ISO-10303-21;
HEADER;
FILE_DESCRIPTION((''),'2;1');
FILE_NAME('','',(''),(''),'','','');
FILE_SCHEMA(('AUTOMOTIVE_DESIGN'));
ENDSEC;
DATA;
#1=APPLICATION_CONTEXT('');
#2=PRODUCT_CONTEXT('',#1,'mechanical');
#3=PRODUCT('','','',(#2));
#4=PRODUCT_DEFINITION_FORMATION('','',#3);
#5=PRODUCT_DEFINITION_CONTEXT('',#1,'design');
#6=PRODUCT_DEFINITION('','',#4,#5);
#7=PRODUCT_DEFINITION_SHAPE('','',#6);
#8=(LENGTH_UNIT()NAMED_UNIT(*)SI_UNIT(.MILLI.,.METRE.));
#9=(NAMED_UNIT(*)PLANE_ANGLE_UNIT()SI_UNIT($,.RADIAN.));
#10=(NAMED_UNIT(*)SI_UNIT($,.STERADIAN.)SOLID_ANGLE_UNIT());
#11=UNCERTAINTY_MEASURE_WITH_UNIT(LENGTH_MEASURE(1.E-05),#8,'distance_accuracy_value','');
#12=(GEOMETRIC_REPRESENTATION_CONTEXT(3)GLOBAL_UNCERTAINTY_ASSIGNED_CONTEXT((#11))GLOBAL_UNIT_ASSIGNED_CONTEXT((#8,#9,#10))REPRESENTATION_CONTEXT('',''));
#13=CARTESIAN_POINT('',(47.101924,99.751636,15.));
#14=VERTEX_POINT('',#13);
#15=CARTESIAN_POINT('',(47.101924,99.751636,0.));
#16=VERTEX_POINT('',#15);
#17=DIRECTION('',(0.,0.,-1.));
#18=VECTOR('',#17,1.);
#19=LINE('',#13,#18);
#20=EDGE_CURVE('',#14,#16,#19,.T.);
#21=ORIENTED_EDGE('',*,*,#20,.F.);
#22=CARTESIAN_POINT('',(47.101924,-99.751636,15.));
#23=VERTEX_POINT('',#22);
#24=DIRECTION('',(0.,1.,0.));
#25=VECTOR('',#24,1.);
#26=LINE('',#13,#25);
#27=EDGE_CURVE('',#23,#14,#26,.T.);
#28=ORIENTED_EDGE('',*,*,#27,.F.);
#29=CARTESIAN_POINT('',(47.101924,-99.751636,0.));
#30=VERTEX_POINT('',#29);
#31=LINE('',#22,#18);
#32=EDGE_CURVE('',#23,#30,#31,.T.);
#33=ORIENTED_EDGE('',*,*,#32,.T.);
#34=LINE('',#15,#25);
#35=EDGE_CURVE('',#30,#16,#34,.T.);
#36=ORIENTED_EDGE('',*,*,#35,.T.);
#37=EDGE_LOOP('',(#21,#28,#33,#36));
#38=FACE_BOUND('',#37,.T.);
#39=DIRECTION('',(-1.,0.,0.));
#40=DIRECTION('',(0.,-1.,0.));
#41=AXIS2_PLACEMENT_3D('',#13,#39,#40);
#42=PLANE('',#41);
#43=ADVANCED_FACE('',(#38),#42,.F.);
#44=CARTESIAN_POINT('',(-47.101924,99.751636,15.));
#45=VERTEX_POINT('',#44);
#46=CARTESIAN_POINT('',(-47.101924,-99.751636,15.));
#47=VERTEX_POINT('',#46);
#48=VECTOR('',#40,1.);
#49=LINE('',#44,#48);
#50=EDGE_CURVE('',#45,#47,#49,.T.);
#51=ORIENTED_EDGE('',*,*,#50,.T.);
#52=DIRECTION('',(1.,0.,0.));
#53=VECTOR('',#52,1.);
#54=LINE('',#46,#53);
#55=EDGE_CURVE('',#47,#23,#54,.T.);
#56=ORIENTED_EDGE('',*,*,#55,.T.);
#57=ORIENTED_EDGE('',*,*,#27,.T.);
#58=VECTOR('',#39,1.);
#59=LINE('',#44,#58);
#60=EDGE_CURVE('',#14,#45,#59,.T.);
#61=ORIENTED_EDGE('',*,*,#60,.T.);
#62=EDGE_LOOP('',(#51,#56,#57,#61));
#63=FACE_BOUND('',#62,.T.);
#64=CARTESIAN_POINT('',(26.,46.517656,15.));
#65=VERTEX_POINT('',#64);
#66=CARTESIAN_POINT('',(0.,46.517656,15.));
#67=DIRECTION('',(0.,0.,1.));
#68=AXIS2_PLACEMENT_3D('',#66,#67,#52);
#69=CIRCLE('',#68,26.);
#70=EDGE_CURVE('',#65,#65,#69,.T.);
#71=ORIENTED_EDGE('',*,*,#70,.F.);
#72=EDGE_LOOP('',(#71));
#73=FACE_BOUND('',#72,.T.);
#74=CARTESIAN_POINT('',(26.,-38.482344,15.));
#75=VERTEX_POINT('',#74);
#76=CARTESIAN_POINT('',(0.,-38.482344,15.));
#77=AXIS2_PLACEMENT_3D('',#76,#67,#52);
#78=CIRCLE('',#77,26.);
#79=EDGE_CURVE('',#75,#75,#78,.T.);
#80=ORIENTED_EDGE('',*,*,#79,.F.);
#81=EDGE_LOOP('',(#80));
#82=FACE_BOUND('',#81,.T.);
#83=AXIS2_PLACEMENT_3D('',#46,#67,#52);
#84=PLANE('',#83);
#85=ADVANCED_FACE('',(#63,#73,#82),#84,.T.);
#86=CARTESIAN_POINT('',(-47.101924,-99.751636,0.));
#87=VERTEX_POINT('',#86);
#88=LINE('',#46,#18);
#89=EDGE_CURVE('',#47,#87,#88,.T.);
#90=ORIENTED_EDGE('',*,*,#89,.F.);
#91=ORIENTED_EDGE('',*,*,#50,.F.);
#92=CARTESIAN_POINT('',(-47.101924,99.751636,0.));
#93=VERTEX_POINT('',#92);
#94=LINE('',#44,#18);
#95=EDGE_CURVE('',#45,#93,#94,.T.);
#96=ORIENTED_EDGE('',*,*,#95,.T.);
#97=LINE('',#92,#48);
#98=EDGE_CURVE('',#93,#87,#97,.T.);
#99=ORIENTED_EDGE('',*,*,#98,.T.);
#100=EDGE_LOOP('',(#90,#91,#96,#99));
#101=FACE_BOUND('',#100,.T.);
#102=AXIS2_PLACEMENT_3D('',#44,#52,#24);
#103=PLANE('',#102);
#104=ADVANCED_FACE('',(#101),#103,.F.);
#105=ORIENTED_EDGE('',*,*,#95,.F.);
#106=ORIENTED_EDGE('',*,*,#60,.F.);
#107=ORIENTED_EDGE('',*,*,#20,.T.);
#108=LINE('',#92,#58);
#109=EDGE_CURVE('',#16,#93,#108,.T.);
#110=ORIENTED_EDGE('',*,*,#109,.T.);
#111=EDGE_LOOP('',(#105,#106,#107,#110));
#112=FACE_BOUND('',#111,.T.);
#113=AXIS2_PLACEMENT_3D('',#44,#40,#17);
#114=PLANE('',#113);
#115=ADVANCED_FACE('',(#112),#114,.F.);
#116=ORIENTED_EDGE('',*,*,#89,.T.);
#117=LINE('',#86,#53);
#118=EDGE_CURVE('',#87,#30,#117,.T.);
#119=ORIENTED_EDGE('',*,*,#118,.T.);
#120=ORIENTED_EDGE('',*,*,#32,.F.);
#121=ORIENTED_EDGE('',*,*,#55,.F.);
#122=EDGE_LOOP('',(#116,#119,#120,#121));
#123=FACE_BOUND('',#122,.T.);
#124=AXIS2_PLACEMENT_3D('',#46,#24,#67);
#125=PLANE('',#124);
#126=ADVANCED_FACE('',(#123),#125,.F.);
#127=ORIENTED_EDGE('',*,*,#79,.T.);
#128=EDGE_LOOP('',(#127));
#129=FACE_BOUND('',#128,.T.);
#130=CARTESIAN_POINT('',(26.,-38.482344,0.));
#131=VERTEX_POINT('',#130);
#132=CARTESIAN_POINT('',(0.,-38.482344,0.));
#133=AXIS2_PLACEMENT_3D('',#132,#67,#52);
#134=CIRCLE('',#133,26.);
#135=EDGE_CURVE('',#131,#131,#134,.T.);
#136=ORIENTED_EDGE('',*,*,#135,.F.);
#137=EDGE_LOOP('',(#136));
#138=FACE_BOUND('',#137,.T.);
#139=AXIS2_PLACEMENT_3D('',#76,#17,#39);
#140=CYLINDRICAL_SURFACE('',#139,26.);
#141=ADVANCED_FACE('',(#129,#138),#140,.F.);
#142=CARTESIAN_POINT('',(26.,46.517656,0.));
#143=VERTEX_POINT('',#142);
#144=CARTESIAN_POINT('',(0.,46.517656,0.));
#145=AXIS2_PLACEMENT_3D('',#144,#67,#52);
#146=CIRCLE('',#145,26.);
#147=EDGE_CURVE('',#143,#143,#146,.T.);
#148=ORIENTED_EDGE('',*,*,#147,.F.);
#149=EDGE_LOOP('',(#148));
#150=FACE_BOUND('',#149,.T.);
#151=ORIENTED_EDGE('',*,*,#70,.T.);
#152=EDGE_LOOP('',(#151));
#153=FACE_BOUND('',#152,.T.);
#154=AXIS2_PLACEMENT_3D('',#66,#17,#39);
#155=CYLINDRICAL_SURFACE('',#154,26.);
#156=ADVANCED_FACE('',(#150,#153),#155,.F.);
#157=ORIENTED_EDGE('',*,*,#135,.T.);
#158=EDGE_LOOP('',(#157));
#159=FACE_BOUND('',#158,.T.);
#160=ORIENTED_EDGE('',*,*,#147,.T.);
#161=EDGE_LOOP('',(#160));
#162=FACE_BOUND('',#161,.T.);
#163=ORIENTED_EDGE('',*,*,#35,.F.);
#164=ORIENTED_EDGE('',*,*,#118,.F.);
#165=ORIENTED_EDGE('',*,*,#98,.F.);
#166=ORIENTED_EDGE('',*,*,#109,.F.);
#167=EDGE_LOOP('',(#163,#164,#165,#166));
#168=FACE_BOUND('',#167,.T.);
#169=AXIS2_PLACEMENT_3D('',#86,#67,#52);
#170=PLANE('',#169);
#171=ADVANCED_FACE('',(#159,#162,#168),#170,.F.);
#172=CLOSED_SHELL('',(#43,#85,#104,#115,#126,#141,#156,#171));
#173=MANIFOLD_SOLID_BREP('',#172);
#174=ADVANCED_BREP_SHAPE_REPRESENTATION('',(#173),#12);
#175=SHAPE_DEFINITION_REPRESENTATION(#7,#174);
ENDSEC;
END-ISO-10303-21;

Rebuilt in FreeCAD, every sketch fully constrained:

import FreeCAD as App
import Part
import Sketcher
from FreeCAD import Vector
Q = App.Units.Quantity


def add_polygon(sketch, points):
    """Adds a closed chain of lines whose ends are joined by coincident constraints."""
    first, n = sketch.GeometryCount, len(points)
    for a, b in zip(points, points[1:] + points[:1]):
        sketch.addGeometry(Part.LineSegment(App.Vector(*a, 0), App.Vector(*b, 0)), False)
    for i in range(n):
        sketch.addConstraint(Sketcher.Constraint("Coincident", first + i, 2, first + (i + 1) % n, 1))

doc = App.newDocument("Part")
body = doc.addObject("PartDesign::Body", "Body")

# Sketch on XY plane
sketch1 = doc.addObject("Sketcher::SketchObject", "Sketch")
body.addObject(sketch1)
sketch1.AttachmentSupport = (doc.XY_Plane, [""])
sketch1.MapMode = "FlatFace"
add_polygon(sketch1, [(-47.101924, 99.751636), (-47.101924, -99.751636), (47.101924, -99.751636), (47.101924, 99.751636)])  # lines 0-3
sketch1.addGeometry(Part.Circle(Vector(0, -38.482344, 0), Vector(0, 0, 1), 26), False)  # 4
sketch1.addGeometry(Part.Circle(Vector(0, 46.517656, 0), Vector(0, 0, 1), 26), False)  # 5
sketch1.addConstraint(Sketcher.Constraint("Vertical", 0))
sketch1.addConstraint(Sketcher.Constraint("Horizontal", 1))
sketch1.addConstraint(Sketcher.Constraint("Vertical", 2))
sketch1.addConstraint(Sketcher.Constraint("Horizontal", 3))
sketch1.addConstraint(Sketcher.Constraint("Equal", 4, 5))
sketch1.addConstraint(Sketcher.Constraint("Symmetric", 0, 2, 2, 2, -1, 1))
sketch1.addConstraint(Sketcher.Constraint("PointOnObject", 4, 3, -2))
sketch1.addConstraint(Sketcher.Constraint("PointOnObject", 5, 3, -2))
sketch1.addConstraint(Sketcher.Constraint("Diameter", 4, Q("52 mm")))
sketch1.addConstraint(Sketcher.Constraint("DistanceY", 4, 3, 5, 3, Q("85 mm")))
sketch1.addConstraint(Sketcher.Constraint("DistanceX", 1, 1, 1, 2, Q("94.203848 mm")))
sketch1.addConstraint(Sketcher.Constraint("DistanceY", 0, 2, 0, 1, Q("199.503272 mm")))
sketch1.addConstraint(Sketcher.Constraint("DistanceY", 5, 3, 2, 2, Q("53.23398 mm")))
pad1 = doc.addObject("PartDesign::Pad", "Pad")
body.addObject(pad1)
pad1.Profile = sketch1
pad1.Length = 15

doc.recompute()
